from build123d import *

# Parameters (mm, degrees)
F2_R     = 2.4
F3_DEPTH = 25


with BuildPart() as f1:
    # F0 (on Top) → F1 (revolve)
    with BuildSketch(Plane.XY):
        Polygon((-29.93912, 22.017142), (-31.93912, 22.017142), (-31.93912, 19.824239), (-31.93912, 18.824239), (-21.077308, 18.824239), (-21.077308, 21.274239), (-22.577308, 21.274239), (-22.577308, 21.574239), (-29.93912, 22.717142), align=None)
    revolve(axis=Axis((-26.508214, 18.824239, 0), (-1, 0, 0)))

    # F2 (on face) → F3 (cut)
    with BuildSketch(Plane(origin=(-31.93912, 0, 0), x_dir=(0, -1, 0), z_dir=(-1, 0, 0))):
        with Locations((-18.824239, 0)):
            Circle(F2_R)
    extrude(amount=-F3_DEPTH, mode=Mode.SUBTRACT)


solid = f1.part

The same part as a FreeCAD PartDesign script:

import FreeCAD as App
import Part
import Sketcher

doc = App.newDocument("Part")
params = doc.addObject("Spreadsheet::Sheet", "Params")
for row, (alias, value) in enumerate([
    ("sketch1_width", "2 mm"),
    ("sketch1_width2", "1.5 mm"),
    ("sketch1_height", "0.3 mm"),
    ("sketch1_height2", "0.7 mm"),
    ("sketch1_height3", "2.45 mm"),
    ("revolution_angle", "360 deg"),
    ("sketch2_diameter", "4.8 mm"),
    ("pocket1_length", "25 mm"),
], start=1):
    params.set(f"A{row}", alias)
    params.set(f"B{row}", "=" + value)
    params.setAlias(f"B{row}", alias)

body = doc.addObject("PartDesign::Body", "Body")

# Sketch on XY plane
sketch1 = body.newObject("Sketcher::SketchObject", "Sketch")
sketch1.AttachmentSupport = (doc.getObject("XY_Plane"), [""])
sketch1.MapMode = "FlatFace"
sketch1.addGeometry(Part.LineSegment(App.Vector(-29.94, 22.02, 0), App.Vector(-31.94, 22.02, 0)), False)
sketch1.addGeometry(Part.LineSegment(App.Vector(-31.94, 22.02, 0), App.Vector(-31.94, 18.82, 0)), False)
sketch1.addGeometry(Part.LineSegment(App.Vector(-31.94, 18.82, 0), App.Vector(-21.08, 18.82, 0)), False)
sketch1.addGeometry(Part.LineSegment(App.Vector(-21.08, 18.82, 0), App.Vector(-21.08, 21.27, 0)), False)
sketch1.addGeometry(Part.LineSegment(App.Vector(-21.08, 21.27, 0), App.Vector(-22.58, 21.27, 0)), False)
sketch1.addGeometry(Part.LineSegment(App.Vector(-22.58, 21.27, 0), App.Vector(-22.58, 21.57, 0)), False)
sketch1.addGeometry(Part.LineSegment(App.Vector(-22.58, 21.57, 0), App.Vector(-29.94, 22.72, 0)), False)
sketch1.addGeometry(Part.LineSegment(App.Vector(-29.94, 22.72, 0), App.Vector(-29.94, 22.02, 0)), False)
sketch1.addGeometry(Part.LineSegment(App.Vector(-21.08, 18.82, 0), App.Vector(-31.94, 18.82, 0)), True)  # axis
sketch1.addConstraint(Sketcher.Constraint("Coincident", 0, 2, 1, 1))
sketch1.addConstraint(Sketcher.Constraint("Coincident", 1, 2, 2, 1))
sketch1.addConstraint(Sketcher.Constraint("Coincident", 2, 2, 3, 1))
sketch1.addConstraint(Sketcher.Constraint("Coincident", 3, 2, 4, 1))
sketch1.addConstraint(Sketcher.Constraint("Coincident", 4, 2, 5, 1))
sketch1.addConstraint(Sketcher.Constraint("Coincident", 5, 2, 6, 1))
sketch1.addConstraint(Sketcher.Constraint("Coincident", 6, 2, 7, 1))
sketch1.addConstraint(Sketcher.Constraint("Coincident", 7, 2, 0, 1))
sketch1.addConstraint(Sketcher.Constraint("Horizontal", 0))
sketch1.addConstraint(Sketcher.Constraint("Vertical", 1))
sketch1.addConstraint(Sketcher.Constraint("Horizontal", 2))
sketch1.addConstraint(Sketcher.Constraint("Vertical", 3))
sketch1.addConstraint(Sketcher.Constraint("Horizontal", 4))
sketch1.addConstraint(Sketcher.Constraint("Vertical", 5))
sketch1.addConstraint(Sketcher.Constraint("Vertical", 7))
sketch1.addConstraint(Sketcher.Constraint("Horizontal", 8))
sketch1.addConstraint(Sketcher.Constraint("Coincident", 8, 1, 2, 2))
sketch1.addConstraint(Sketcher.Constraint("Vertical", 0, 2, 8, 2))
sketch1.addConstraint(Sketcher.Constraint("DistanceX", 0, 2, 0, 1, 2.0))
sketch1.addConstraint(Sketcher.Constraint("DistanceX", 4, 2, 4, 1, 1.5))
sketch1.addConstraint(Sketcher.Constraint("DistanceY", 5, 1, 5, 2, 0.3))
sketch1.addConstraint(Sketcher.Constraint("DistanceY", 7, 2, 7, 1, 0.7))
sketch1.addConstraint(Sketcher.Constraint("DistanceY", 3, 1, 3, 2, 2.45))
sketch1.addConstraint(Sketcher.Constraint("Distance", 6, 7.45))
sketch1.addConstraint(Sketcher.Constraint("DistanceX", 2, 1, 2, 2, 10.861812))
sketch1.addConstraint(Sketcher.Constraint("DistanceX", 0, 2, -1, 1, 31.93912))
sketch1.addConstraint(Sketcher.Constraint("DistanceY", -1, 1, 0, 2, 22.017142))
sketch1.setExpression("Constraints[18]", "Params.sketch1_width")
sketch1.setExpression("Constraints[19]", "Params.sketch1_width2")
sketch1.setExpression("Constraints[20]", "Params.sketch1_height")
sketch1.setExpression("Constraints[21]", "Params.sketch1_height2")
sketch1.setExpression("Constraints[22]", "Params.sketch1_height3")
revolution = body.newObject("PartDesign::Revolution", "Revolution")
revolution.Profile = sketch1
revolution.ReferenceAxis = (sketch1, ["Axis0"])
revolution.setExpression("Angle", "Params.revolution_angle")

# Sketch on YZ plane
sketch2 = body.newObject("Sketcher::SketchObject", "Sketch001")
sketch2.AttachmentSupport = (doc.getObject("YZ_Plane"), [""])
sketch2.MapMode = "FlatFace"
sketch2.AttachmentOffset = App.Placement(App.Vector(0, 0, -31.93912), App.Rotation())
sketch2.addGeometry(Part.Circle(App.Vector(18.8, 0, 0), App.Vector(0, 0, 1), 2.4), False)
sketch2.addConstraint(Sketcher.Constraint("PointOnObject", 0, 3, -1))
sketch2.addConstraint(Sketcher.Constraint("Diameter", 0, 4.8))
sketch2.addConstraint(Sketcher.Constraint("DistanceX", -1, 1, 0, 3, 18.824239))
sketch2.setExpression("Constraints[1]", "Params.sketch2_diameter")
pocket1 = body.newObject("PartDesign::Pocket", "Pocket")
pocket1.Profile = sketch2
pocket1.setExpression("Length", "Params.pocket1_length")
pocket1.Reversed = True

doc.recompute()
